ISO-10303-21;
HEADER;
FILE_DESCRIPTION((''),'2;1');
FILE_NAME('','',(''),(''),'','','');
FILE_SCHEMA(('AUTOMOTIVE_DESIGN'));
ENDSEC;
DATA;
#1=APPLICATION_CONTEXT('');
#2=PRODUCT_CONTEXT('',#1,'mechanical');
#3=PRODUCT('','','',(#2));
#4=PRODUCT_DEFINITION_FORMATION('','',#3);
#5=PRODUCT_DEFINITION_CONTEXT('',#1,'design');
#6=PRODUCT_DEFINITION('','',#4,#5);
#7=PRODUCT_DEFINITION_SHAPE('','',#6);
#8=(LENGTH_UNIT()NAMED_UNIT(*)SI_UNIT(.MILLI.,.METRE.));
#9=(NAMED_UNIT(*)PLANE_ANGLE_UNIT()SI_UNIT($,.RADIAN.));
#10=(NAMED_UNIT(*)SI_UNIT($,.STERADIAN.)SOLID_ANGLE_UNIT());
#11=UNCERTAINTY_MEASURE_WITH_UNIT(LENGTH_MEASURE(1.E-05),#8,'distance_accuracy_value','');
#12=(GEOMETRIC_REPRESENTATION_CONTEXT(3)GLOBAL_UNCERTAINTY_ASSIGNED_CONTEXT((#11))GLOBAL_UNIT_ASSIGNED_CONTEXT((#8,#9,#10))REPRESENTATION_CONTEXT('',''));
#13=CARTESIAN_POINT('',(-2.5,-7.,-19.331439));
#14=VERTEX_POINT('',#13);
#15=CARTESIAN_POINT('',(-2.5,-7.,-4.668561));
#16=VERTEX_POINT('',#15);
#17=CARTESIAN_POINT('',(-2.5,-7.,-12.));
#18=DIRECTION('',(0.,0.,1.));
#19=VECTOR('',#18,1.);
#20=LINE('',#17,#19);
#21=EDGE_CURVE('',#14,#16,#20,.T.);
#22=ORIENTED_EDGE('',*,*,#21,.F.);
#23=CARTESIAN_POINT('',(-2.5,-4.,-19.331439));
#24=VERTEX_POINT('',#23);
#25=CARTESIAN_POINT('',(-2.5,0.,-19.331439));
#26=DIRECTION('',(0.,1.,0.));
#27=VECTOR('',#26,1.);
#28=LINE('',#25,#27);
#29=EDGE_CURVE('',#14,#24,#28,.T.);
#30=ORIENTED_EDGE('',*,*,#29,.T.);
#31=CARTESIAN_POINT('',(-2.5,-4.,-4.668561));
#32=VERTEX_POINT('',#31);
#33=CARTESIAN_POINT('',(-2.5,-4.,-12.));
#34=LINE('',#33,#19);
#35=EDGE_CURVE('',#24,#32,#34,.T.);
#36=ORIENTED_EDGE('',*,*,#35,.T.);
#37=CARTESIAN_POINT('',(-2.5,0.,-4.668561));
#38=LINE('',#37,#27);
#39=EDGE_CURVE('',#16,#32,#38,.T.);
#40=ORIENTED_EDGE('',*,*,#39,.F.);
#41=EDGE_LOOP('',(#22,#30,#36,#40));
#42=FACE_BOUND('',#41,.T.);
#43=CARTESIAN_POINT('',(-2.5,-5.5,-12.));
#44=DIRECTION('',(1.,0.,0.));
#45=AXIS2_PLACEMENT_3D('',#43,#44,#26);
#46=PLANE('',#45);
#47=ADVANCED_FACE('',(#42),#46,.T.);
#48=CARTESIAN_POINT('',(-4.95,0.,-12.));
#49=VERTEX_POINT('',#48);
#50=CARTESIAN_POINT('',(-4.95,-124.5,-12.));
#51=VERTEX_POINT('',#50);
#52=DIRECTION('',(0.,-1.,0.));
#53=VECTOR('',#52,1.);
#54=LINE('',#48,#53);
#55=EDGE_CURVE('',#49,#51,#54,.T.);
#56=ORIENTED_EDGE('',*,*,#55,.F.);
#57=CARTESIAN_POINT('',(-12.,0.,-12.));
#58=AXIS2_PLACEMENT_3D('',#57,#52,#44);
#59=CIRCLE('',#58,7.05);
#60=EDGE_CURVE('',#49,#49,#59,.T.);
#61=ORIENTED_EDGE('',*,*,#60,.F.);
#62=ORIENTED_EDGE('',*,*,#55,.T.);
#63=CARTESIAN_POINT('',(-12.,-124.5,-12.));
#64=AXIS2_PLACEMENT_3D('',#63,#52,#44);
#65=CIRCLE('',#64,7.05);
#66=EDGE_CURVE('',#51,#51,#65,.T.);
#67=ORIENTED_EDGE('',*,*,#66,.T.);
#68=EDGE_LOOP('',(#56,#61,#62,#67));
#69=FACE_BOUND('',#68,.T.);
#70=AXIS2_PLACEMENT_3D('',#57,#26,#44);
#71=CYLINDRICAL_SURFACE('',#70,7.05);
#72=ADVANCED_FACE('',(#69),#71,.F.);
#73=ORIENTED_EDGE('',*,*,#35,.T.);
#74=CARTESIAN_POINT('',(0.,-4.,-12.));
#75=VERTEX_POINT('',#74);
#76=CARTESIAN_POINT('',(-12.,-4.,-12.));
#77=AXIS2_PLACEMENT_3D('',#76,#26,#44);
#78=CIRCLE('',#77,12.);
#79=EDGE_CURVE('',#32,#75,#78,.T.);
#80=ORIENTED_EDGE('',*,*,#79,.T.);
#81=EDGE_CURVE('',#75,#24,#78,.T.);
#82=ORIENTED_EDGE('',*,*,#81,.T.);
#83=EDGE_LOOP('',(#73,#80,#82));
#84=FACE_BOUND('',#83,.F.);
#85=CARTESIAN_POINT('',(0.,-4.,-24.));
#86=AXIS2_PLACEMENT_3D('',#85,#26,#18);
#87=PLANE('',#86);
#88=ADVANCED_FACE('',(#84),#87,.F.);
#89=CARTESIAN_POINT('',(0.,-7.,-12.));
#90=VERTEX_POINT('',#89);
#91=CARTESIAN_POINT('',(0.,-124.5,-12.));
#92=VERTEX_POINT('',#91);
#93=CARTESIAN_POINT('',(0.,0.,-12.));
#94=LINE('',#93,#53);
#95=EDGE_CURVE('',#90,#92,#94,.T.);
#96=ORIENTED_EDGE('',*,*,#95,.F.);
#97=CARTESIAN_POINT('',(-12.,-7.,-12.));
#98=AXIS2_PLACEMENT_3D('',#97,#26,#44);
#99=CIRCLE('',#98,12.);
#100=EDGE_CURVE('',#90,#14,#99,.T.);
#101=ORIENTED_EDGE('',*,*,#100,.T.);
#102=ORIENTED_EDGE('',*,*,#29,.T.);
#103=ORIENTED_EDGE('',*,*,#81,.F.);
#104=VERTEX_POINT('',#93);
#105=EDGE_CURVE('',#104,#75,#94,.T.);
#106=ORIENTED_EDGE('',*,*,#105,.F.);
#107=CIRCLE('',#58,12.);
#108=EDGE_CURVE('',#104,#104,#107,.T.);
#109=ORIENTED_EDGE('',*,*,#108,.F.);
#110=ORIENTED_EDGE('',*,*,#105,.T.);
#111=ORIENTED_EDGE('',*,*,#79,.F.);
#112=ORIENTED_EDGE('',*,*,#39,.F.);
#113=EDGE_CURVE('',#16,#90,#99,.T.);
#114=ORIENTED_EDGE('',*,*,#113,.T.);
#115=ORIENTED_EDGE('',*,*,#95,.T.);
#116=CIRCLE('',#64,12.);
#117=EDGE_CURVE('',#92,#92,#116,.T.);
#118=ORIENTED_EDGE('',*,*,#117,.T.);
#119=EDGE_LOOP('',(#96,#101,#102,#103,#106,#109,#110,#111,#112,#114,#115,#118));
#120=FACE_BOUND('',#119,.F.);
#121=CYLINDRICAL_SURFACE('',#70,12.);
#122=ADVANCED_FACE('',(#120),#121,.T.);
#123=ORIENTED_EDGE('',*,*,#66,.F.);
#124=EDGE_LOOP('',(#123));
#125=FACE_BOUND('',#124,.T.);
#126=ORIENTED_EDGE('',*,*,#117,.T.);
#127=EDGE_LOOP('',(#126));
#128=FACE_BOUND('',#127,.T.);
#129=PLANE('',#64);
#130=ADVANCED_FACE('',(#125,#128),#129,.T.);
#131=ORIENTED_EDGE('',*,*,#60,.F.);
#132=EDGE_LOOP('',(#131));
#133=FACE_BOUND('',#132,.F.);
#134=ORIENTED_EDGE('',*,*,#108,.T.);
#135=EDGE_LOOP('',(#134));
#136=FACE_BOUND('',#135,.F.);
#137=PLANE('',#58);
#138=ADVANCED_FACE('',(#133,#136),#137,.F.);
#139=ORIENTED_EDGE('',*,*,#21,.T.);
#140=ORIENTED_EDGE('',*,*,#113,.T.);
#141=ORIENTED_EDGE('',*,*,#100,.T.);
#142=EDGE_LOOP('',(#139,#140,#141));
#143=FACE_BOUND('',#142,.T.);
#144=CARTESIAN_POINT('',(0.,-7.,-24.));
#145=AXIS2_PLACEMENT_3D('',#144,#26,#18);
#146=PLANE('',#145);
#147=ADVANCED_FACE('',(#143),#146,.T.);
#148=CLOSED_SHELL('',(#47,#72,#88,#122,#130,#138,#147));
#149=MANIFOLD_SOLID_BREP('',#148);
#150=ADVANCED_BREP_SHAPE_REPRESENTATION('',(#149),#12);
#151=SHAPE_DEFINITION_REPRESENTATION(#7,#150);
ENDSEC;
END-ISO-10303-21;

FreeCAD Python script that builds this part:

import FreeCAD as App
import Part
import Sketcher

doc = App.newDocument("Part")
body = doc.addObject("PartDesign::Body", "Body")

# Sketch on XZ plane
sketch1 = body.newObject("Sketcher::SketchObject", "Sketch")
sketch1.AttachmentSupport = (doc.getObject("XZ_Plane"), [""])
sketch1.MapMode = "FlatFace"
sketch1.addGeometry([
    Part.Circle(App.Vector(-12, -12, 0), App.Vector(0, 0, 1), 12),
    Part.Circle(App.Vector(-12, -12, 0), App.Vector(0, 0, 1), 7),
], False)
sketch1.addConstraint([
    Sketcher.Constraint("Coincident", 1, 3, 0, 3),
    Sketcher.Constraint("Diameter", 0, 24.0),
    Sketcher.Constraint("Diameter", 1, 14.1),
    Sketcher.Constraint("DistanceX", 0, 3, -1, 1, 12.0),
    Sketcher.Constraint("DistanceY", 0, 3, -1, 1, 12.0),
])
pad1 = body.newObject("PartDesign::Pad", "Pad")
pad1.Profile = sketch1
pad1.Length = 124.5

# Sketch on YZ plane
sketch2 = body.newObject("Sketcher::SketchObject", "Sketch001")
sketch2.AttachmentSupport = (doc.getObject("YZ_Plane"), [""])
sketch2.MapMode = "FlatFace"
sketch2.addGeometry([
    Part.LineSegment(App.Vector(-7, 0, 0), App.Vector(-7, -24, 0)),
    Part.LineSegment(App.Vector(-7, -24, 0), App.Vector(-4, -24, 0)),
    Part.LineSegment(App.Vector(-4, -24, 0), App.Vector(-4, 0, 0)),
    Part.LineSegment(App.Vector(-4, 0, 0), App.Vector(-7, 0, 0)),
], False)
sketch2.addConstraint([
    Sketcher.Constraint("Coincident", 0, 2, 1, 1),
    Sketcher.Constraint("Coincident", 1, 2, 2, 1),
    Sketcher.Constraint("Coincident", 2, 2, 3, 1),
    Sketcher.Constraint("Coincident", 3, 2, 0, 1),
    Sketcher.Constraint("Vertical", 0),
    Sketcher.Constraint("Horizontal", 1),
    Sketcher.Constraint("Vertical", 2),
    Sketcher.Constraint("Horizontal", 3),
    Sketcher.Constraint("PointOnObject", 2, 2, -1),
    Sketcher.Constraint("DistanceX", 1, 1, 1, 2, 3.0),
    Sketcher.Constraint("DistanceY", 0, 2, 0, 1, 24.0),
    Sketcher.Constraint("DistanceX", 0, 2, -1, 1, 7.0),
])
pocket1 = body.newObject("PartDesign::Pocket", "Pocket")
pocket1.Profile = sketch2
pocket1.Length = 2.5

doc.recompute()
